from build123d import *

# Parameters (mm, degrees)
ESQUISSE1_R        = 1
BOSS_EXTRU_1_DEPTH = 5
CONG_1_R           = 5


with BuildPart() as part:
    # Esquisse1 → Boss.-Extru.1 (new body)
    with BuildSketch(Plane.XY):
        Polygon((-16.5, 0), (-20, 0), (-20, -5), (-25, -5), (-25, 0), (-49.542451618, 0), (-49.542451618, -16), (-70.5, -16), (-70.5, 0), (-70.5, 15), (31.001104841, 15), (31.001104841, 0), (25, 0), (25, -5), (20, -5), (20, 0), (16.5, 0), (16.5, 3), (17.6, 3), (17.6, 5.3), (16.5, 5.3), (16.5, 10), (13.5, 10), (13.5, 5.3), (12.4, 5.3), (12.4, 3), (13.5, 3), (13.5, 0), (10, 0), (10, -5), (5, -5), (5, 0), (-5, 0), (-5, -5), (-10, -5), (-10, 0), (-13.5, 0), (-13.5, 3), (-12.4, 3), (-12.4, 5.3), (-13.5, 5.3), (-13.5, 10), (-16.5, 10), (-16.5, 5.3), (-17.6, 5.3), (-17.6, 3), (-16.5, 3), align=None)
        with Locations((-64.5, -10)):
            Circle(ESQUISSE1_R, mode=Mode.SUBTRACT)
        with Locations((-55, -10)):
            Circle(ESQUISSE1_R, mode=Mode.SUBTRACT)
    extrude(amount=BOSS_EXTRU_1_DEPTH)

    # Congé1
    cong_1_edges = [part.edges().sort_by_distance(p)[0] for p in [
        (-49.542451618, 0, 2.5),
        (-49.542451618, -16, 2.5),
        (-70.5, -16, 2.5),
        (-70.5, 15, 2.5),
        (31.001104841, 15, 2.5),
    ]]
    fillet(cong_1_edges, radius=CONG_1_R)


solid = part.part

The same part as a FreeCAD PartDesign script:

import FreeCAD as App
import Part
import Sketcher
from FreeCAD import Vector


def edges_at(feature, points):
    """Names of the edges that pass closest to the given points."""
    edges = feature.Shape.Edges
    near = lambda p: min(range(len(edges)), key=lambda i: edges[i].distToShape(Part.Vertex(*p))[0])
    return sorted({f"Edge{near(p) + 1}" for p in points})

doc = App.newDocument("Part")
body = doc.addObject("PartDesign::Body", "Body")

sketch1 = body.newObject("Sketcher::SketchObject", "Sketch")
sketch1.AttachmentSupport = (doc.getObject("XY_Plane"), [""])
sketch1.MapMode = "FlatFace"
sketch1.addGeometry([
    Part.LineSegment(Vector(-20, 0, 0), Vector(-16.5, 0, 0)),
    Part.LineSegment(Vector(-16.5, 0, 0), Vector(-16.5, 3, 0)),
    Part.LineSegment(Vector(-16.5, 3, 0), Vector(-17.6, 3, 0)),
    Part.LineSegment(Vector(-17.6, 3, 0), Vector(-17.6, 5.3, 0)),
    Part.LineSegment(Vector(-17.6, 5.3, 0), Vector(-16.5, 5.3, 0)),
    Part.LineSegment(Vector(-16.5, 5.3, 0), Vector(-16.5, 10, 0)),
    Part.LineSegment(Vector(-16.5, 10, 0), Vector(-13.5, 10, 0)),
    Part.LineSegment(Vector(-13.5, 10, 0), Vector(-13.5, 5.3, 0)),
    Part.LineSegment(Vector(-13.5, 5.3, 0), Vector(-12.4, 5.3, 0)),
    Part.LineSegment(Vector(-12.4, 5.3, 0), Vector(-12.4, 3, 0)),
    Part.LineSegment(Vector(-12.4, 3, 0), Vector(-13.5, 3, 0)),
    Part.LineSegment(Vector(-13.5, 3, 0), Vector(-13.5, 0, 0)),
    Part.LineSegment(Vector(-13.5, 0, 0), Vector(-10, 0, 0)),
    Part.LineSegment(Vector(-10, 0, 0), Vector(-10, -5, 0)),
    Part.LineSegment(Vector(-10, -5, 0), Vector(-5, -5, 0)),
    Part.LineSegment(Vector(-5, -5, 0), Vector(-5, 0, 0)),
    Part.LineSegment(Vector(-5, 0, 0), Vector(5, 0, 0)),
    Part.LineSegment(Vector(5, 0, 0), Vector(5, -5, 0)),
    Part.LineSegment(Vector(5, -5, 0), Vector(10, -5, 0)),
    Part.LineSegment(Vector(10, -5, 0), Vector(10, 0, 0)),
    Part.LineSegment(Vector(10, 0, 0), Vector(13.5, 0, 0)),
    Part.LineSegment(Vector(13.5, 0, 0), Vector(13.5, 3, 0)),
    Part.LineSegment(Vector(13.5, 3, 0), Vector(12.4, 3, 0)),
    Part.LineSegment(Vector(12.4, 3, 0), Vector(12.4, 5.3, 0)),
    Part.LineSegment(Vector(12.4, 5.3, 0), Vector(13.5, 5.3, 0)),
    Part.LineSegment(Vector(13.5, 5.3, 0), Vector(13.5, 10, 0)),
    Part.LineSegment(Vector(13.5, 10, 0), Vector(16.5, 10, 0)),
    Part.LineSegment(Vector(16.5, 10, 0), Vector(16.5, 5.3, 0)),
    Part.LineSegment(Vector(16.5, 5.3, 0), Vector(17.6, 5.3, 0)),
    Part.LineSegment(Vector(17.6, 5.3, 0), Vector(17.6, 3, 0)),
    Part.LineSegment(Vector(17.6, 3, 0), Vector(16.5, 3, 0)),
    Part.LineSegment(Vector(16.5, 3, 0), Vector(16.5, 0, 0)),
    Part.LineSegment(Vector(16.5, 0, 0), Vector(20, 0, 0)),
    Part.LineSegment(Vector(20, 0, 0), Vector(20, -5, 0)),
    Part.LineSegment(Vector(20, -5, 0), Vector(25, -5, 0)),
    Part.LineSegment(Vector(25, -5, 0), Vector(25, 0, 0)),
    Part.LineSegment(Vector(25, 0, 0), Vector(31, 0, 0)),
    Part.LineSegment(Vector(31, 0, 0), Vector(31, 15, 0)),
    Part.LineSegment(Vector(31, 15, 0), Vector(-70.5, 15, 0)),
    Part.LineSegment(Vector(-70.5, 15, 0), Vector(-70.5, -16, 0)),
    Part.LineSegment(Vector(-70.5, -16, 0), Vector(-49.5, -16, 0)),
    Part.LineSegment(Vector(-49.5, -16, 0), Vector(-49.5, 0, 0)),
    Part.LineSegment(Vector(-49.5, 0, 0), Vector(-25, 0, 0)),
    Part.LineSegment(Vector(-25, 0, 0), Vector(-25, -5, 0)),
    Part.LineSegment(Vector(-25, -5, 0), Vector(-20, -5, 0)),
    Part.LineSegment(Vector(-20, -5, 0), Vector(-20, 0, 0)),
    Part.Circle(Vector(-55, -10, 0), Vector(0, 0, 1), 1),
    Part.Circle(Vector(-64.5, -10, 0), Vector(0, 0, 1), 1),
], False)
sketch1.addConstraint([
    Sketcher.Constraint("Coincident", 0, 2, 1, 1),
    Sketcher.Constraint("Coincident", 1, 2, 2, 1),
    Sketcher.Constraint("Coincident", 2, 2, 3, 1),
    Sketcher.Constraint("Coincident", 3, 2, 4, 1),
    Sketcher.Constraint("Coincident", 4, 2, 5, 1),
    Sketcher.Constraint("Coincident", 5, 2, 6, 1),
    Sketcher.Constraint("Coincident", 6, 2, 7, 1),
    Sketcher.Constraint("Coincident", 7, 2, 8, 1),
    Sketcher.Constraint("Coincident", 8, 2, 9, 1),
    Sketcher.Constraint("Coincident", 9, 2, 10, 1),
    Sketcher.Constraint("Coincident", 10, 2, 11, 1),
    Sketcher.Constraint("Coincident", 11, 2, 12, 1),
    Sketcher.Constraint("Coincident", 12, 2, 13, 1),
    Sketcher.Constraint("Coincident", 13, 2, 14, 1),
    Sketcher.Constraint("Coincident", 14, 2, 15, 1),
    Sketcher.Constraint("Coincident", 15, 2, 16, 1),
    Sketcher.Constraint("Coincident", 16, 2, 17, 1),
    Sketcher.Constraint("Coincident", 17, 2, 18, 1),
    Sketcher.Constraint("Coincident", 18, 2, 19, 1),
    Sketcher.Constraint("Coincident", 19, 2, 20, 1),
    Sketcher.Constraint("Coincident", 20, 2, 21, 1),
    Sketcher.Constraint("Coincident", 21, 2, 22, 1),
    Sketcher.Constraint("Coincident", 22, 2, 23, 1),
    Sketcher.Constraint("Coincident", 23, 2, 24, 1),
    Sketcher.Constraint("Coincident", 24, 2, 25, 1),
    Sketcher.Constraint("Coincident", 25, 2, 26, 1),
    Sketcher.Constraint("Coincident", 26, 2, 27, 1),
    Sketcher.Constraint("Coincident", 27, 2, 28, 1),
    Sketcher.Constraint("Coincident", 28, 2, 29, 1),
    Sketcher.Constraint("Coincident", 29, 2, 30, 1),
    Sketcher.Constraint("Coincident", 30, 2, 31, 1),
    Sketcher.Constraint("Coincident", 31, 2, 32, 1),
    Sketcher.Constraint("Coincident", 32, 2, 33, 1),
    Sketcher.Constraint("Coincident", 33, 2, 34, 1),
    Sketcher.Constraint("Coincident", 34, 2, 35, 1),
    Sketcher.Constraint("Coincident", 35, 2, 36, 1),
    Sketcher.Constraint("Coincident", 36, 2, 37, 1),
    Sketcher.Constraint("Coincident", 37, 2, 38, 1),
    Sketcher.Constraint("Coincident", 38, 2, 39, 1),
    Sketcher.Constraint("Coincident", 39, 2, 40, 1),
    Sketcher.Constraint("Coincident", 40, 2, 41, 1),
    Sketcher.Constraint("Coincident", 41, 2, 42, 1),
    Sketcher.Constraint("Coincident", 42, 2, 43, 1),
    Sketcher.Constraint("Coincident", 43, 2, 44, 1),
    Sketcher.Constraint("Coincident", 44, 2, 45, 1),
    Sketcher.Constraint("Coincident", 45, 2, 0, 1),
    Sketcher.Constraint("Horizontal", 0),
    Sketcher.Constraint("Vertical", 1),
    Sketcher.Constraint("Horizontal", 2),
    Sketcher.Constraint("Vertical", 3),
    Sketcher.Constraint("Horizontal", 4),
    Sketcher.Constraint("Vertical", 5),
    Sketcher.Constraint("Horizontal", 6),
    Sketcher.Constraint("Vertical", 7),
    Sketcher.Constraint("Horizontal", 8),
    Sketcher.Constraint("Vertical", 9),
    Sketcher.Constraint("Horizontal", 10),
    Sketcher.Constraint("Vertical", 11),
    Sketcher.Constraint("Horizontal", 12),
    Sketcher.Constraint("Vertical", 13),
    Sketcher.Constraint("Horizontal", 14),
    Sketcher.Constraint("Vertical", 15),
    Sketcher.Constraint("Horizontal", 16),
    Sketcher.Constraint("Vertical", 17),
    Sketcher.Constraint("Horizontal", 18),
    Sketcher.Constraint("Vertical", 19),
    Sketcher.Constraint("Horizontal", 20),
    Sketcher.Constraint("Vertical", 21),
    Sketcher.Constraint("Horizontal", 22),
    Sketcher.Constraint("Vertical", 23),
    Sketcher.Constraint("Horizontal", 24),
    Sketcher.Constraint("Vertical", 25),
    Sketcher.Constraint("Horizontal", 26),
    Sketcher.Constraint("Vertical", 27),
    Sketcher.Constraint("Horizontal", 28),
    Sketcher.Constraint("Vertical", 29),
    Sketcher.Constraint("Horizontal", 30),
    Sketcher.Constraint("Vertical", 31),
    Sketcher.Constraint("Horizontal", 32),
    Sketcher.Constraint("Vertical", 33),
    Sketcher.Constraint("Horizontal", 34),
    Sketcher.Constraint("Vertical", 35),
    Sketcher.Constraint("Horizontal", 36),
    Sketcher.Constraint("Vertical", 37),
    Sketcher.Constraint("Horizontal", 38),
    Sketcher.Constraint("Vertical", 39),
    Sketcher.Constraint("Horizontal", 40),
    Sketcher.Constraint("Vertical", 41),
    Sketcher.Constraint("Horizontal", 42),
    Sketcher.Constraint("Vertical", 43),
    Sketcher.Constraint("Horizontal", 44),
    Sketcher.Constraint("Vertical", 45),
    Sketcher.Constraint("Equal", 46, 47),
    Sketcher.Constraint("Symmetric", 15, 2, 16, 2, -1, 1),
    Sketcher.Constraint("Symmetric", 12, 2, 19, 2, -1, 1),
    Sketcher.Constraint("Symmetric", 0, 2, 31, 2, -1, 1),
    Sketcher.Constraint("Symmetric", 35, 2, 42, 2, -1, 1),
    Sketcher.Constraint("Symmetric", 11, 2, 20, 2, -2),
    Sketcher.Constraint("Symmetric", 9, 2, 22, 2, -2),
    Sketcher.Constraint("Symmetric", 7, 2, 24, 2, -2),
    Sketcher.Constraint("Symmetric", 5, 2, 26, 2, -2),
    Sketcher.Constraint("Symmetric", 3, 2, 28, 2, -2),
    Sketcher.Constraint("Symmetric", 33, 2, 44, 2, -2),
    Sketcher.Constraint("PointOnObject", 0, 2, -1),
    Sketcher.Constraint("PointOnObject", 35, 2, -1),
    Sketcher.Constraint("Horizontal", 46, 3, 47, 3),
    Sketcher.Constraint("Horizontal", 4, 2, 7, 2),
    Sketcher.Constraint("Horizontal", 2, 2, 9, 2),
    Sketcher.Constraint("Horizontal", 14, 2, 17, 2),
    Sketcher.Constraint("Horizontal", 22, 2, 29, 2),
    Sketcher.Constraint("Horizontal", 18, 2, 33, 2),
    Sketcher.Constraint("Vertical", 1, 2, 4, 2),
    Sketcher.Constraint("Vertical", 7, 2, 10, 2),
    Sketcher.Constraint("Equal", 4, 8),
    Sketcher.Constraint("Equal", 0, 12),
    Sketcher.Constraint("Equal", 18, 34),
    Sketcher.Constraint("Equal", 26, 1),
    Sketcher.Constraint("Equal", 44, 13),
    Sketcher.Constraint("Diameter", 46, 2.0),
    Sketcher.Constraint("DistanceX", 6, 1, 6, 2, 3.0),
    Sketcher.Constraint("DistanceX", 14, 1, 14, 2, 5.0),
    Sketcher.Constraint("DistanceX", 16, 1, 16, 2, 10.0),
    Sketcher.Constraint("DistanceY", 37, 1, 37, 2, 15.0),
    Sketcher.Constraint("DistanceY", 39, 2, 39, 1, 31.0),
    Sketcher.Constraint("DistanceX", 0, 1, 0, 2, 3.5),
    Sketcher.Constraint("DistanceX", 2, 2, 2, 1, 1.1),
    Sketcher.Constraint("DistanceY", 3, 1, 3, 2, 2.3),
    Sketcher.Constraint("DistanceY", 5, 1, 5, 2, 4.7),
    Sketcher.Constraint("DistanceX", 46, 3, -1, 1, 55.0),
    Sketcher.Constraint("DistanceY", 46, 3, -1, 1, 10.0),
    Sketcher.Constraint("DistanceX", 47, 3, 0, 2, 48.0),
    Sketcher.Constraint("DistanceX", 38, 2, 47, 3, 6.0),
    Sketcher.Constraint("DistanceX", 40, 1, 40, 2, 20.957548),
    Sketcher.Constraint("DistanceX", 36, 1, 36, 2, 6.001105),
])
pad1 = body.newObject("PartDesign::Pad", "Pad")
pad1.Profile = sketch1
pad1.Length = 5
doc.recompute()

fillet = body.newObject("PartDesign::Fillet", "Fillet")
fillet.Base = (pad1, edges_at(pad1, [
    (-49.542, 0, 2.5),
    (-49.542, -16, 2.5),
    (-70.5, -16, 2.5),
    (-70.5, 15, 2.5),
    (31.001, 15, 2.5),
]))
fillet.Radius = 5

doc.recompute()
